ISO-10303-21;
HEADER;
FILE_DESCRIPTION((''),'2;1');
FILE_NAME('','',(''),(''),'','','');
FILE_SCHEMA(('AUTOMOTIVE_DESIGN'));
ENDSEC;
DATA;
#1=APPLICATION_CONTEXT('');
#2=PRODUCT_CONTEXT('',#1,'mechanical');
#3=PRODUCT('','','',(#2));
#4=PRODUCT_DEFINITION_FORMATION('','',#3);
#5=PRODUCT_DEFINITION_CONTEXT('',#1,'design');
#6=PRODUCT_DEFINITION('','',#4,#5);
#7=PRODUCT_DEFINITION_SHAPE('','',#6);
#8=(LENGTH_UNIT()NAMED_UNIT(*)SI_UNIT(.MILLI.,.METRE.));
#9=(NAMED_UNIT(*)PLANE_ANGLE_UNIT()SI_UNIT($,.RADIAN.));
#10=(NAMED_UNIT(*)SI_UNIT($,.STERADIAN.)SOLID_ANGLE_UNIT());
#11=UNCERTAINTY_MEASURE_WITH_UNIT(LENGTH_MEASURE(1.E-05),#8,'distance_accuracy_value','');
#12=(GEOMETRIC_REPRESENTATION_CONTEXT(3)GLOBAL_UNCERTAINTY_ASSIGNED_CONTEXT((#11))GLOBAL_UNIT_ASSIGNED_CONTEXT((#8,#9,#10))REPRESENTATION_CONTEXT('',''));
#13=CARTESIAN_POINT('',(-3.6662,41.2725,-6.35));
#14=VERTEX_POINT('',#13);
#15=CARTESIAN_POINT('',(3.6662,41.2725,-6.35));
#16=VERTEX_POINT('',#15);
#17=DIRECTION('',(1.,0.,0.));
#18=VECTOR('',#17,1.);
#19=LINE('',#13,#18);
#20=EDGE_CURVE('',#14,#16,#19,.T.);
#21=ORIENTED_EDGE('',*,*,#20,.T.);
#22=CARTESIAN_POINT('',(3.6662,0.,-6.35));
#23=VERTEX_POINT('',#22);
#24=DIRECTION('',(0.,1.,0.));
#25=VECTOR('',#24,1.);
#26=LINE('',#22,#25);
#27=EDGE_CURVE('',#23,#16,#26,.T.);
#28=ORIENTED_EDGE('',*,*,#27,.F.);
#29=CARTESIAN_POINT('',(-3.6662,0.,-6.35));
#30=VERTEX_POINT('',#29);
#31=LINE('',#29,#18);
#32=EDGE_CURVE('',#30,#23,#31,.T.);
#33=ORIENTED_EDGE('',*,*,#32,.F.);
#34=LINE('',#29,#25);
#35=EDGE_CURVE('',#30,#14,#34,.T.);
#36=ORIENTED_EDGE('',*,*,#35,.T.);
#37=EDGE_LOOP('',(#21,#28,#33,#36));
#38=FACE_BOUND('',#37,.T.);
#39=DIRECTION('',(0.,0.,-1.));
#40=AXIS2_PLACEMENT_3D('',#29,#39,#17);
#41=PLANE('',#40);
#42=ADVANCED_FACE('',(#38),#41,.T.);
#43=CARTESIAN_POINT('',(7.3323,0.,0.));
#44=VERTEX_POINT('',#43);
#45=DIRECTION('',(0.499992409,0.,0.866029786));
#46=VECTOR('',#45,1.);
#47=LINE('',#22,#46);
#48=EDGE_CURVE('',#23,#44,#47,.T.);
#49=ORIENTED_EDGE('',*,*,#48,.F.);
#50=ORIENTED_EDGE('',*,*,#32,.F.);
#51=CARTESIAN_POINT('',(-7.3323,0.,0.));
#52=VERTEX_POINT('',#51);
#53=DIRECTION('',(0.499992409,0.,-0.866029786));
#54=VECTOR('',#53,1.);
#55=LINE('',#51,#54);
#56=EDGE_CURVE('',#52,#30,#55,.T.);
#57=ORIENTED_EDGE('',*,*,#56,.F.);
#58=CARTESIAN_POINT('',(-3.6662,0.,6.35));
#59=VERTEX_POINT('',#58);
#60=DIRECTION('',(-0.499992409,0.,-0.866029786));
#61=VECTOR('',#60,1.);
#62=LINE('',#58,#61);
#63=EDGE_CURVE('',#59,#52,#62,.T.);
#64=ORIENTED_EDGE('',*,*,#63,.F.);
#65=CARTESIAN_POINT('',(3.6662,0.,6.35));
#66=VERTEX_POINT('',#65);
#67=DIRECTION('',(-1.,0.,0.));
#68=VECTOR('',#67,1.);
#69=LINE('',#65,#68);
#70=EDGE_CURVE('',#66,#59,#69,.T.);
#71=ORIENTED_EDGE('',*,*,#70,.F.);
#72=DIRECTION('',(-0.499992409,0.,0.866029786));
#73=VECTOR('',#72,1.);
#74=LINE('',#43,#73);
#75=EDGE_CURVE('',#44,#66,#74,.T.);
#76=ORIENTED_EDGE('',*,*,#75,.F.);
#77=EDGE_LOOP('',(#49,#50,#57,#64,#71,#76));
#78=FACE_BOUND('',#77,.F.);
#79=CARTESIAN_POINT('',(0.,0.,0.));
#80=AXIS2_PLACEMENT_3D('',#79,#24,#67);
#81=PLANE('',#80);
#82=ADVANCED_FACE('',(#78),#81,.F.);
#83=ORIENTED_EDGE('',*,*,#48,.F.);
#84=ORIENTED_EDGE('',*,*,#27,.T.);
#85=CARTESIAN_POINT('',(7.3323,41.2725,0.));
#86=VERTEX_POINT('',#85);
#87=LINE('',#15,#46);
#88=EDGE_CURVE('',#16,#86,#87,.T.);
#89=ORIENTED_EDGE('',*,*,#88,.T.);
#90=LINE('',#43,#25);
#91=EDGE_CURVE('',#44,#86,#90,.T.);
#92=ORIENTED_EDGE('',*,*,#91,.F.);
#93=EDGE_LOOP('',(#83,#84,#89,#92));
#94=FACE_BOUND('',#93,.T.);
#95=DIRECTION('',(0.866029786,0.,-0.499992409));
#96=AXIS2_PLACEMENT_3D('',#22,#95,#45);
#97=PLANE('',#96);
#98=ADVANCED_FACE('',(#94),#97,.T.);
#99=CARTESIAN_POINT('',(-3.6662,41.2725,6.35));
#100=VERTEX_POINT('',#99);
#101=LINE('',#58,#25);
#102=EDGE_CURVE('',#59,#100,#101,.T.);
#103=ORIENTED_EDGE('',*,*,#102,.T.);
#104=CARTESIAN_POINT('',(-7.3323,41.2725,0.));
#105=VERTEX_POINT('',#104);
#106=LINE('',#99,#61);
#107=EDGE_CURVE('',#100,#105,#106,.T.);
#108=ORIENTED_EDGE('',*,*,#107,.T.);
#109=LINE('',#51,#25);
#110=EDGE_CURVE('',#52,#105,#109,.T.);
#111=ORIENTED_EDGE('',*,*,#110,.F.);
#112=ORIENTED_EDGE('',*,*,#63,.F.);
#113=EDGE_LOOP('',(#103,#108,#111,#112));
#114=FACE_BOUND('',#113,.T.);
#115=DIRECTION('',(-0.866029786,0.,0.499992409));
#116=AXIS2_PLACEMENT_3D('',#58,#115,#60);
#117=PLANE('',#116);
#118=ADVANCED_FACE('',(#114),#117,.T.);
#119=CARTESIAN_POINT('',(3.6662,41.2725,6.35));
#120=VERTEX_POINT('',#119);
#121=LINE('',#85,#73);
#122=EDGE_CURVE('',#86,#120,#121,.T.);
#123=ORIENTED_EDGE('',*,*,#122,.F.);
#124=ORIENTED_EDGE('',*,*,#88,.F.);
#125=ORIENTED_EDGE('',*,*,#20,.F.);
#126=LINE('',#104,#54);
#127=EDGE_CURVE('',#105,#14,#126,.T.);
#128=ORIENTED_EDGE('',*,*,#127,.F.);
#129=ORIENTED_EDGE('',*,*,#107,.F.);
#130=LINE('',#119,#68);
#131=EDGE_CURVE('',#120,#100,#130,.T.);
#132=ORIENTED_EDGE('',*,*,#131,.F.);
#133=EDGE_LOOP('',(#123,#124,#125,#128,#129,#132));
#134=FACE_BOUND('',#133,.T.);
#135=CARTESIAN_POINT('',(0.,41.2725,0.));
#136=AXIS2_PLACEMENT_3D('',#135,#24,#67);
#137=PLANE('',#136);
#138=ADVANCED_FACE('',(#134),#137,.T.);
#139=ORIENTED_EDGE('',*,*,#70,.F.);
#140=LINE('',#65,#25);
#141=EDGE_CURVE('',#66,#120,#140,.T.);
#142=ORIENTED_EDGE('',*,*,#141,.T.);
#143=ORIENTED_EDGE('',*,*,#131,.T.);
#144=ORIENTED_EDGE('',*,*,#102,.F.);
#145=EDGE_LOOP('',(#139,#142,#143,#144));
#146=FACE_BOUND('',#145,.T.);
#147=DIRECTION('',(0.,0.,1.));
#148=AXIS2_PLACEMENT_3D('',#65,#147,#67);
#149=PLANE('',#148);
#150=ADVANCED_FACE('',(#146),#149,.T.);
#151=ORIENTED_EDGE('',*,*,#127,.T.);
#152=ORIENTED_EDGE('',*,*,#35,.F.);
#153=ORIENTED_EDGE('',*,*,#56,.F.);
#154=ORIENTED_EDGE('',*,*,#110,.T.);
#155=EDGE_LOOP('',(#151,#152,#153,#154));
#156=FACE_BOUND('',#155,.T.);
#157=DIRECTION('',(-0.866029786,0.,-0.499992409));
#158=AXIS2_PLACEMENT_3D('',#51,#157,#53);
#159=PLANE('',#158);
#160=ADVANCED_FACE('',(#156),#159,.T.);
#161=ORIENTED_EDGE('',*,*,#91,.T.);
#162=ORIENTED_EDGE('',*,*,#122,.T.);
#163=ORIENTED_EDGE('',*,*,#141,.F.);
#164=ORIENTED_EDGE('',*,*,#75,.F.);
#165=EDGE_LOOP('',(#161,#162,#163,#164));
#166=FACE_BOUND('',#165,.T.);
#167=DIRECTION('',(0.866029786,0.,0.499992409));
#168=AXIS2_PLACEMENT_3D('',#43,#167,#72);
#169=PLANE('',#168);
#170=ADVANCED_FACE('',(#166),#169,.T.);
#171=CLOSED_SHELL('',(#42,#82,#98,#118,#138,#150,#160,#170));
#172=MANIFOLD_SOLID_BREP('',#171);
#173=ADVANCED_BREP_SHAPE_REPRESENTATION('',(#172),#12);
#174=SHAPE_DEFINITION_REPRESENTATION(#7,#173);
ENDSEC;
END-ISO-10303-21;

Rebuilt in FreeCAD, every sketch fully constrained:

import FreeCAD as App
import Part
import Sketcher
Q = App.Units.Quantity


def add_polygon(sketch, points):
    """Adds a closed chain of lines whose ends are joined by coincident constraints."""
    first, n = sketch.GeometryCount, len(points)
    for a, b in zip(points, points[1:] + points[:1]):
        sketch.addGeometry(Part.LineSegment(App.Vector(*a, 0), App.Vector(*b, 0)), False)
    for i in range(n):
        sketch.addConstraint(Sketcher.Constraint("Coincident", first + i, 2, first + (i + 1) % n, 1))

doc = App.newDocument("Part")
body = doc.addObject("PartDesign::Body", "Body")

# Sketch on XZ plane
sketch1 = body.newObject("Sketcher::SketchObject", "Sketch")
sketch1.AttachmentSupport = (doc.getObject("XZ_Plane"), [""])
sketch1.MapMode = "FlatFace"
add_polygon(sketch1, [(-7.3323, 0), (-3.6662, 6.35), (3.6662, 6.35), (7.3323, 0), (3.6662, -6.35), (-3.6662, -6.35)])  # lines 0-5
sketch1.addConstraint(Sketcher.Constraint("Horizontal", 1))
sketch1.addConstraint(Sketcher.Constraint("Horizontal", 4))
sketch1.addConstraint(Sketcher.Constraint("Symmetric", 0, 2, 3, 2, -1, 1))
sketch1.addConstraint(Sketcher.Constraint("Symmetric", 2, 2, 5, 2, -1, 1))
sketch1.addConstraint(Sketcher.Constraint("PointOnObject", 2, 2, -1))
sketch1.addConstraint(Sketcher.Constraint("Parallel", 2, 5))
sketch1.addConstraint(Sketcher.Constraint("Vertical", 1, 2, 3, 2))
sketch1.addConstraint(Sketcher.Constraint("DistanceY", 3, 2, 1, 2, 12.7))
sketch1.addConstraint(Sketcher.Constraint("Angle", 0, Q("60.0005 deg")))
sketch1.addConstraint(Sketcher.Constraint("DistanceX", 1, 1, 1, 2, 7.3324))
pad1 = body.newObject("PartDesign::Pad", "Pad")
pad1.Profile = sketch1
pad1.Length = 41.2725
pad1.Reversed = True

doc.recompute()
